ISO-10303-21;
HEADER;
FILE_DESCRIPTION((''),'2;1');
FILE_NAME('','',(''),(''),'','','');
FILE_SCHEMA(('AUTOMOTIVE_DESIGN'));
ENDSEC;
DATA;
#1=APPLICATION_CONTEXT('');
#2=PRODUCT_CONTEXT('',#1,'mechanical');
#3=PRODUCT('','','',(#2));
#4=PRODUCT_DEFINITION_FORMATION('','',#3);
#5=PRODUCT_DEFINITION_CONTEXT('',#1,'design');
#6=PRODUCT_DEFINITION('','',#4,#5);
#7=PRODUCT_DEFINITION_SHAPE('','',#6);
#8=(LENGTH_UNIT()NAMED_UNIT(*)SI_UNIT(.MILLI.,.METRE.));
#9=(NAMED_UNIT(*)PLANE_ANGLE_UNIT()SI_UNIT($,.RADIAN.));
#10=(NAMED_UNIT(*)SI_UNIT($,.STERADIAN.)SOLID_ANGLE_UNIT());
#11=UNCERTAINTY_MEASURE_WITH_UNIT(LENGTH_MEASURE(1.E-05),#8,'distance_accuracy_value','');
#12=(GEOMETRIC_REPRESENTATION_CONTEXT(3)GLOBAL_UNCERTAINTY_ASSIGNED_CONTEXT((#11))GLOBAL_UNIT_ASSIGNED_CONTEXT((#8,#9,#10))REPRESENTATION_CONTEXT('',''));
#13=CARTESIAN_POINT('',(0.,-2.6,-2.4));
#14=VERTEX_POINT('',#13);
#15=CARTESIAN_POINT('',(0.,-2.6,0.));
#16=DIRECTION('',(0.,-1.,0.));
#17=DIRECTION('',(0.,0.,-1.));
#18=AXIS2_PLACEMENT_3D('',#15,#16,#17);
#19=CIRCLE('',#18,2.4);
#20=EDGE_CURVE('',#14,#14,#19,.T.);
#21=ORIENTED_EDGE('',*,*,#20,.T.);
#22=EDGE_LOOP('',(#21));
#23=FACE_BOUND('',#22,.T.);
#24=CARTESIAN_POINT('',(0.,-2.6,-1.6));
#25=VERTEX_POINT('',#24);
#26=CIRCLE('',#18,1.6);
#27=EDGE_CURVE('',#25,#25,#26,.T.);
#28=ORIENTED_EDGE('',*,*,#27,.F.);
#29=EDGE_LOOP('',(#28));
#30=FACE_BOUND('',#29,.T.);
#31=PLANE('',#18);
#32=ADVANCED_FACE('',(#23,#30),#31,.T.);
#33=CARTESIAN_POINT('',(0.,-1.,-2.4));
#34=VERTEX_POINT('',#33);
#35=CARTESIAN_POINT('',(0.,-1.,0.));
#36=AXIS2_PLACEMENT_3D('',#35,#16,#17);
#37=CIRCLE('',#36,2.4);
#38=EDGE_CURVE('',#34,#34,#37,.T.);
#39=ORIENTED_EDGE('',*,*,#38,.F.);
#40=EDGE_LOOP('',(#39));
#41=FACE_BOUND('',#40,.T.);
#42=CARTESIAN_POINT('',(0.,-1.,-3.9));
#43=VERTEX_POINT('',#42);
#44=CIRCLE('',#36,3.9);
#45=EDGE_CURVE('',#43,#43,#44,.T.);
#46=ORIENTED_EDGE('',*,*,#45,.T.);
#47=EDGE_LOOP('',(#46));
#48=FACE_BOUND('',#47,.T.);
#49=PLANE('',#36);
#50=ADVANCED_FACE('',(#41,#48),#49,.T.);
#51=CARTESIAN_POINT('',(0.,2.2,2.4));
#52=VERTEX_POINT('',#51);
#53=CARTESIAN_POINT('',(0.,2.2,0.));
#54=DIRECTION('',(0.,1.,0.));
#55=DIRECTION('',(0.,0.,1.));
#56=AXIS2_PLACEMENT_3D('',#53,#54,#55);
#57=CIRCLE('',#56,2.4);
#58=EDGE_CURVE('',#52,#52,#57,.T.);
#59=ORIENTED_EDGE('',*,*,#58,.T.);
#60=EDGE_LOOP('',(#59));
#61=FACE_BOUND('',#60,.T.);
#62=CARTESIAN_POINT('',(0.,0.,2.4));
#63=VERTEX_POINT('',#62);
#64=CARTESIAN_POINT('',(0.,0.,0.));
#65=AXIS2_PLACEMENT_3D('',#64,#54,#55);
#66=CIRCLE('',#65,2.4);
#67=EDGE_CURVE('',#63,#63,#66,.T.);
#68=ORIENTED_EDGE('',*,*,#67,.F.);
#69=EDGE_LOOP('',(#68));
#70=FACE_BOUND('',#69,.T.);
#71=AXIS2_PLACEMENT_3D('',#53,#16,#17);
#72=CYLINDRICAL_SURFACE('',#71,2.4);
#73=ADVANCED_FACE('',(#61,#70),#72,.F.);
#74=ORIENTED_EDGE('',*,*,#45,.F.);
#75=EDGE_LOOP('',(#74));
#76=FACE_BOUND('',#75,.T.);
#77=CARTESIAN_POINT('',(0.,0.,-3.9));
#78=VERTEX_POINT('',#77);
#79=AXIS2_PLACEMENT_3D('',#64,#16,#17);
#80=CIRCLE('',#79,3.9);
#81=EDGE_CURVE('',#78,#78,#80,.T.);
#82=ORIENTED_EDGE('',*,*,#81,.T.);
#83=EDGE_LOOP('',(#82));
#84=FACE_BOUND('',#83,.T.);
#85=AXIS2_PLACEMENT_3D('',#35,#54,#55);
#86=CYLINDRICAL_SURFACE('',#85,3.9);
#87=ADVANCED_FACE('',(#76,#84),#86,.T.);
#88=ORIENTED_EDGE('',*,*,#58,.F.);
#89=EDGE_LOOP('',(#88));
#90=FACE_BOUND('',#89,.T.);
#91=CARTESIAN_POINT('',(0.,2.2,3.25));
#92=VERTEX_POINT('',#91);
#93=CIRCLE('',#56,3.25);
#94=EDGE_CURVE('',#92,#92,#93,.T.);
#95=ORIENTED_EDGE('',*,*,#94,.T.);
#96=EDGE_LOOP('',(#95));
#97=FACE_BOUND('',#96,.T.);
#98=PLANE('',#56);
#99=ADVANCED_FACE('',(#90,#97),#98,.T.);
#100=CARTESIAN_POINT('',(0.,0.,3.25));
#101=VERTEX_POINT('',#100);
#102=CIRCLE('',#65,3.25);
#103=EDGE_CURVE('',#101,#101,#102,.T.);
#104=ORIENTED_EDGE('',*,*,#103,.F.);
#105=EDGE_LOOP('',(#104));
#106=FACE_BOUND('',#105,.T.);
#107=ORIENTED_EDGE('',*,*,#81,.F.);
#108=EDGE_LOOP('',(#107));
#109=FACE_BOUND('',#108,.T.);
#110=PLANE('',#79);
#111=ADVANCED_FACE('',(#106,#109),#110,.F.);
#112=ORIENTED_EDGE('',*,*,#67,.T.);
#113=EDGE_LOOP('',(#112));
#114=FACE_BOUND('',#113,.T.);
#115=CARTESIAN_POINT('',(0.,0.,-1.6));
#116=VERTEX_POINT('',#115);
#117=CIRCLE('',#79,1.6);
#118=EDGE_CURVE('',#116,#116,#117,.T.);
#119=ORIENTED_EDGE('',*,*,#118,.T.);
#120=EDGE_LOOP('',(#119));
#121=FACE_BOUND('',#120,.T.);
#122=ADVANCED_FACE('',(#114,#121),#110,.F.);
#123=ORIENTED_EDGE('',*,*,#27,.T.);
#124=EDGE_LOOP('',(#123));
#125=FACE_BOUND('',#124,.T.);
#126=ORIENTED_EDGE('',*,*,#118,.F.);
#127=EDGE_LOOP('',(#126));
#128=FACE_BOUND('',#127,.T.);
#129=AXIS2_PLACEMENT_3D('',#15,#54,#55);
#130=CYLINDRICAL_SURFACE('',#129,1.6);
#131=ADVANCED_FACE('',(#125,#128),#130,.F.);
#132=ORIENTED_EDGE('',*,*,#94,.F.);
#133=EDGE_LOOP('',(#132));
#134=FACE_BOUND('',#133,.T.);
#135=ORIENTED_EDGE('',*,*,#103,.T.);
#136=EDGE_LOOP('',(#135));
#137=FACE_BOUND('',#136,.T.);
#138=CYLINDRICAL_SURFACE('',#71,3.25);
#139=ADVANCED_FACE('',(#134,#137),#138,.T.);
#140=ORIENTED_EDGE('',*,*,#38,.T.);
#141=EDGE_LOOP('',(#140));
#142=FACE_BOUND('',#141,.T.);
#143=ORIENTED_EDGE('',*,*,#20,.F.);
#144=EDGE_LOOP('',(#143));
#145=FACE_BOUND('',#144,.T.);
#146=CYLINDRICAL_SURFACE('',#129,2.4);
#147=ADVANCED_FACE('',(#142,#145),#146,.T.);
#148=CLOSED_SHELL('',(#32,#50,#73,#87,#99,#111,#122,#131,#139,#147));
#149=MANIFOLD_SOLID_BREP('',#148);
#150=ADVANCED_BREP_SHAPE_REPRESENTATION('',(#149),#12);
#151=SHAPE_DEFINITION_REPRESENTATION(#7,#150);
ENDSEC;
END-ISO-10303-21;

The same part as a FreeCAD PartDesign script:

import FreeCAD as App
import Part
import Sketcher

V = App.Vector
Q = App.Units.Quantity

doc = App.newDocument("Part")
body = doc.addObject("PartDesign::Body", "Body")

sketch1 = body.newObject("Sketcher::SketchObject", "Sketch")
sketch1.AttachmentSupport = (doc.getObject("XZ_Plane"), [""])
sketch1.MapMode = "FlatFace"
sketch1.addGeometry([
    Part.Circle(V(0, 0, 0), V(0, 0, 1), 3.2),
    Part.Circle(V(0, 0, 0), V(0, 0, 1), 2.4),
], False)
sketch1.addConstraint([
    Sketcher.Constraint("Coincident", 0, 3, -1, 1),
    Sketcher.Constraint("Coincident", 1, 3, -1, 1),
    Sketcher.Constraint("Diameter", 0, Q("6.5 mm")),
    Sketcher.Constraint("Diameter", 1, Q("4.8 mm")),
])
pad1 = body.newObject("PartDesign::Pad", "Pad")
pad1.Profile = sketch1
pad1.Length = 2.2
pad1.Reversed = True

sketch2 = body.newObject("Sketcher::SketchObject", "Sketch001")
sketch2.AttachmentSupport = (doc.getObject("XZ_Plane"), [""])
sketch2.MapMode = "FlatFace"
sketch2.addGeometry(Part.Circle(V(0, 0, 0), V(0, 0, 1), 3.9), False)
sketch2.addConstraint([
    Sketcher.Constraint("Coincident", 0, 3, -1, 1),
    Sketcher.Constraint("Diameter", 0, Q("7.8 mm")),
])
pad2 = body.newObject("PartDesign::Pad", "Pad001")
pad2.Profile = sketch2
pad2.Length = 1

sketch3 = body.newObject("Sketcher::SketchObject", "Sketch002")
sketch3.AttachmentSupport = (doc.getObject("XZ_Plane"), [""])
sketch3.MapMode = "FlatFace"
sketch3.AttachmentOffset = App.Placement(V(0, 0, 2.6), App.Rotation())
sketch3.addGeometry([
    Part.Circle(V(0, 0, 0), V(0, 0, 1), 2.4),
    Part.Circle(V(0, 0, 0), V(0, 0, 1), 1.6),
], False)
sketch3.addConstraint([
    Sketcher.Constraint("Coincident", 0, 3, -1, 1),
    Sketcher.Constraint("Coincident", 1, 3, -1, 1),
    Sketcher.Constraint("Diameter", 0, Q("4.8 mm")),
    Sketcher.Constraint("Diameter", 1, Q("3.2 mm")),
])
pad3 = body.newObject("PartDesign::Pad", "Pad002")
pad3.Profile = sketch3
pad3.Length = 1.6
pad3.Reversed = True

sketch4 = body.newObject("Sketcher::SketchObject", "Sketch003")
sketch4.AttachmentSupport = (doc.getObject("XZ_Plane"), [""])
sketch4.MapMode = "FlatFace"
sketch4.AttachmentOffset = App.Placement(V(0, 0, 1), App.Rotation())
sketch4.addGeometry(Part.Circle(V(0, 0, 0), V(0, 0, 1), 1.6), False)
sketch4.addConstraint([
    Sketcher.Constraint("Coincident", 0, 3, -1, 1),
    Sketcher.Constraint("Diameter", 0, Q("3.2 mm")),
])
pocket1 = body.newObject("PartDesign::Pocket", "Pocket")
pocket1.Profile = sketch4
pocket1.Type = "ThroughAll"

doc.recompute()
